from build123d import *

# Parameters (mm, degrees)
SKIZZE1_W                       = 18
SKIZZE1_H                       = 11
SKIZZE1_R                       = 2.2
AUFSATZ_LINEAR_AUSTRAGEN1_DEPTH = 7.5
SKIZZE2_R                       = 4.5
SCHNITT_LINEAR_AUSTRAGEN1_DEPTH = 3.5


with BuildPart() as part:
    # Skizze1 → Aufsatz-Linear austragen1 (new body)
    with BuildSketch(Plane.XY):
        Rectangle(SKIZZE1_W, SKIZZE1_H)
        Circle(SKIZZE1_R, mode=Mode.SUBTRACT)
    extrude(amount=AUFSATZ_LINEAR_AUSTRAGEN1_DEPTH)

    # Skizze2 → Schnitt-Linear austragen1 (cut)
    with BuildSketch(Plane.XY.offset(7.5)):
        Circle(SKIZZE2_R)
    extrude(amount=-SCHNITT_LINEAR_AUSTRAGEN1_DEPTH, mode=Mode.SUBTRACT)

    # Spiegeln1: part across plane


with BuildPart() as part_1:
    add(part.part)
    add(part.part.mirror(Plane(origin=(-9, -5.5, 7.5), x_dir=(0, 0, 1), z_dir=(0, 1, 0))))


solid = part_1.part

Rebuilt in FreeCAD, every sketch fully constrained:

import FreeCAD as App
import Part
import Sketcher
from FreeCAD import Vector
Q = App.Units.Quantity


def add_polygon(sketch, points):
    """Adds a closed chain of lines whose ends are joined by coincident constraints."""
    first, n = sketch.GeometryCount, len(points)
    for a, b in zip(points, points[1:] + points[:1]):
        sketch.addGeometry(Part.LineSegment(App.Vector(*a, 0), App.Vector(*b, 0)), False)
    for i in range(n):
        sketch.addConstraint(Sketcher.Constraint("Coincident", first + i, 2, first + (i + 1) % n, 1))

doc = App.newDocument("Part")
body = doc.addObject("PartDesign::Body", "Body")

sketch1 = doc.addObject("Sketcher::SketchObject", "Sketch")
body.addObject(sketch1)
sketch1.AttachmentSupport = (doc.XY_Plane, [""])
sketch1.MapMode = "FlatFace"
add_polygon(sketch1, [(-9, 5.5), (-9, -5.5), (9, -5.5), (9, 5.5)])
sketch1.addGeometry(Part.Circle(Vector(0, 0, 0), Vector(0, 0, 1), 2.2), False)
sketch1.addConstraint([
    Sketcher.Constraint("Vertical", 0),
    Sketcher.Constraint("Horizontal", 1),
    Sketcher.Constraint("Vertical", 2),
    Sketcher.Constraint("Horizontal", 3),
    Sketcher.Constraint("Coincident", 4, 3, -1, 1),
    Sketcher.Constraint("Symmetric", 0, 2, 2, 2, -1, 1),
    Sketcher.Constraint("Diameter", 4, Q("4.4 mm")),
    Sketcher.Constraint("DistanceX", 1, 1, 1, 2, Q("18 mm")),
    Sketcher.Constraint("DistanceY", 0, 2, 0, 1, Q("11 mm")),
])
pad1 = doc.addObject("PartDesign::Pad", "Pad")
body.addObject(pad1)
pad1.Profile = sketch1
pad1.Length = 7.5

sketch2 = doc.addObject("Sketcher::SketchObject", "Sketch001")
body.addObject(sketch2)
sketch2.AttachmentSupport = (doc.XY_Plane, [""])
sketch2.MapMode = "FlatFace"
sketch2.AttachmentOffset = App.Placement(Vector(0, 0, 7.5), App.Rotation())
sketch2.addGeometry(Part.Circle(Vector(0, 0, 0), Vector(0, 0, 1), 4.5), False)
sketch2.addConstraint([
    Sketcher.Constraint("Coincident", 0, 3, -1, 1),
    Sketcher.Constraint("Diameter", 0, Q("9 mm")),
])
pocket1 = doc.addObject("PartDesign::Pocket", "Pocket")
body.addObject(pocket1)
pocket1.Profile = sketch2
pocket1.Length = 3.5
body2 = doc.addObject("PartDesign::Body", "Body001")
doc.recompute()

body2.BaseFeature = body
doc.recompute()

mirroring = doc.addObject("Part::Mirroring", "Mirroring")
mirroring.Source = body
mirroring.Base = Vector(-9, -5.5, 7.5)
mirroring.Normal = Vector(0, 1, 0)
body3 = doc.addObject("PartDesign::Body", "Body002")
body3.BaseFeature = mirroring
boolean = doc.addObject("PartDesign::Boolean", "Boolean")
body2.addObject(boolean)
boolean.Type = "Fuse"
boolean.addObjects([body3])
doc.recompute()
mirroring.Visibility = False

doc.recompute()
